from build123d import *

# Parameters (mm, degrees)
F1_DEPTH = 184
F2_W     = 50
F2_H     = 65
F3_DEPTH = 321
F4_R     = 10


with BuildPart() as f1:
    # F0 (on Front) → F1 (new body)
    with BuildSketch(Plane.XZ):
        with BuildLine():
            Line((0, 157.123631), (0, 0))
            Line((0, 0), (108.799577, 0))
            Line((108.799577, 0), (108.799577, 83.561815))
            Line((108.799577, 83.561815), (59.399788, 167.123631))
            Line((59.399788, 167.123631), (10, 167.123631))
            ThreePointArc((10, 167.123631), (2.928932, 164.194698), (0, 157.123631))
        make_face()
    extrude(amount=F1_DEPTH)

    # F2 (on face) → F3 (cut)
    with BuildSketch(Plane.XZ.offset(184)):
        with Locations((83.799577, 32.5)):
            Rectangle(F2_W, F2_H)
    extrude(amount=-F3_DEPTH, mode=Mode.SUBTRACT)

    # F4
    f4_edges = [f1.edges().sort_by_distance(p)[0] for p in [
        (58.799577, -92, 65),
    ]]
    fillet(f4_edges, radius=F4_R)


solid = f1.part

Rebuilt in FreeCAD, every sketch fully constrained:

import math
import FreeCAD as App
import Part
import Sketcher


def edges_at(feature, points):
    """Names of the edges that pass closest to the given points."""
    edges = feature.Shape.Edges
    near = lambda p: min(range(len(edges)), key=lambda i: edges[i].distToShape(Part.Vertex(*p))[0])
    return sorted({f"Edge{near(p) + 1}" for p in points})

doc = App.newDocument("Part")
params = doc.addObject("Spreadsheet::Sheet", "Params")
for row, (alias, value) in enumerate([
    ("sketch1_radius", "10.000001 mm"),
    ("pad1_length", "184 mm"),
    ("sketch2_width", "50 mm"),
    ("sketch2_height", "65 mm"),
    ("pocket1_length", "321 mm"),
    ("fillet_radius", "10 mm"),
], start=1):
    params.set(f"A{row}", alias)
    params.set(f"B{row}", "=" + value)
    params.setAlias(f"B{row}", alias)

body = doc.addObject("PartDesign::Body", "Body")

# Sketch on XZ plane
sketch1 = doc.addObject("Sketcher::SketchObject", "Sketch")
body.addObject(sketch1)
sketch1.AttachmentSupport = (doc.XZ_Plane, [""])
sketch1.MapMode = "FlatFace"
sketch1.addGeometry(Part.LineSegment(App.Vector(0, 157, 0), App.Vector(0, 0, 0)), False)
sketch1.addGeometry(Part.LineSegment(App.Vector(0, 0, 0), App.Vector(109, 0, 0)), False)
sketch1.addGeometry(Part.LineSegment(App.Vector(109, 0, 0), App.Vector(109, 84, 0)), False)
sketch1.addGeometry(Part.LineSegment(App.Vector(109, 84, 0), App.Vector(59, 167, 0)), False)
sketch1.addGeometry(Part.LineSegment(App.Vector(59, 167, 0), App.Vector(10, 167, 0)), False)
sketch1.addGeometry(Part.ArcOfCircle(Part.Circle(App.Vector(10, 157, 0), App.Vector(0, 0, 1), 10), math.radians(90), math.radians(180)), False)
sketch1.addConstraint(Sketcher.Constraint("Coincident", 0, 2, 1, 1))
sketch1.addConstraint(Sketcher.Constraint("Coincident", 1, 2, 2, 1))
sketch1.addConstraint(Sketcher.Constraint("Coincident", 2, 2, 3, 1))
sketch1.addConstraint(Sketcher.Constraint("Coincident", 3, 2, 4, 1))
sketch1.addConstraint(Sketcher.Constraint("Tangent", 4, 2, 5, 1))
sketch1.addConstraint(Sketcher.Constraint("Tangent", 5, 2, 0, 1))
sketch1.addConstraint(Sketcher.Constraint("Vertical", 0))
sketch1.addConstraint(Sketcher.Constraint("Horizontal", 1))
sketch1.addConstraint(Sketcher.Constraint("Vertical", 2))
sketch1.addConstraint(Sketcher.Constraint("Horizontal", 4))
sketch1.addConstraint(Sketcher.Constraint("Coincident", 0, 2, -1, 1))
sketch1.addConstraint(Sketcher.Constraint("Radius", 5, 10.000001))
sketch1.addConstraint(Sketcher.Constraint("DistanceY", 0, 2, 0, 1, 157.123631))
sketch1.addConstraint(Sketcher.Constraint("DistanceX", 1, 1, 1, 2, 108.799577))
sketch1.addConstraint(Sketcher.Constraint("DistanceX", 4, 2, 4, 1, 49.399788))
sketch1.addConstraint(Sketcher.Constraint("DistanceY", 2, 1, 2, 2, 83.561815))
sketch1.setExpression("Constraints[11]", "Params.sketch1_radius")
pad1 = doc.addObject("PartDesign::Pad", "Pad")
body.addObject(pad1)
pad1.Profile = sketch1
pad1.setExpression("Length", "Params.pad1_length")

# Sketch on XZ plane
sketch2 = doc.addObject("Sketcher::SketchObject", "Sketch001")
body.addObject(sketch2)
sketch2.AttachmentSupport = (doc.XZ_Plane, [""])
sketch2.MapMode = "FlatFace"
sketch2.AttachmentOffset = App.Placement(App.Vector(0, 0, 184), App.Rotation())
sketch2.addGeometry(Part.LineSegment(App.Vector(59, 65, 0), App.Vector(59, 0, 0)), False)
sketch2.addGeometry(Part.LineSegment(App.Vector(59, 0, 0), App.Vector(109, 0, 0)), False)
sketch2.addGeometry(Part.LineSegment(App.Vector(109, 0, 0), App.Vector(109, 65, 0)), False)
sketch2.addGeometry(Part.LineSegment(App.Vector(109, 65, 0), App.Vector(59, 65, 0)), False)
sketch2.addConstraint(Sketcher.Constraint("Coincident", 0, 2, 1, 1))
sketch2.addConstraint(Sketcher.Constraint("Coincident", 1, 2, 2, 1))
sketch2.addConstraint(Sketcher.Constraint("Coincident", 2, 2, 3, 1))
sketch2.addConstraint(Sketcher.Constraint("Coincident", 3, 2, 0, 1))
sketch2.addConstraint(Sketcher.Constraint("Vertical", 0))
sketch2.addConstraint(Sketcher.Constraint("Horizontal", 1))
sketch2.addConstraint(Sketcher.Constraint("Vertical", 2))
sketch2.addConstraint(Sketcher.Constraint("Horizontal", 3))
sketch2.addConstraint(Sketcher.Constraint("PointOnObject", 0, 2, -1))
sketch2.addConstraint(Sketcher.Constraint("DistanceX", 1, 1, 1, 2, 50.0))
sketch2.addConstraint(Sketcher.Constraint("DistanceY", 0, 2, 0, 1, 65.0))
sketch2.addConstraint(Sketcher.Constraint("DistanceX", -1, 1, 0, 2, 58.799577))
sketch2.setExpression("Constraints[9]", "Params.sketch2_width")
sketch2.setExpression("Constraints[10]", "Params.sketch2_height")
pocket1 = doc.addObject("PartDesign::Pocket", "Pocket")
body.addObject(pocket1)
pocket1.Profile = sketch2
pocket1.setExpression("Length", "Params.pocket1_length")
doc.recompute()

fillet = doc.addObject("PartDesign::Fillet", "Fillet")
body.addObject(fillet)
fillet.Base = (pocket1, edges_at(pocket1, [(58.8, -92, 65)]))
fillet.setExpression("Radius", "Params.fillet_radius")

doc.recompute()
